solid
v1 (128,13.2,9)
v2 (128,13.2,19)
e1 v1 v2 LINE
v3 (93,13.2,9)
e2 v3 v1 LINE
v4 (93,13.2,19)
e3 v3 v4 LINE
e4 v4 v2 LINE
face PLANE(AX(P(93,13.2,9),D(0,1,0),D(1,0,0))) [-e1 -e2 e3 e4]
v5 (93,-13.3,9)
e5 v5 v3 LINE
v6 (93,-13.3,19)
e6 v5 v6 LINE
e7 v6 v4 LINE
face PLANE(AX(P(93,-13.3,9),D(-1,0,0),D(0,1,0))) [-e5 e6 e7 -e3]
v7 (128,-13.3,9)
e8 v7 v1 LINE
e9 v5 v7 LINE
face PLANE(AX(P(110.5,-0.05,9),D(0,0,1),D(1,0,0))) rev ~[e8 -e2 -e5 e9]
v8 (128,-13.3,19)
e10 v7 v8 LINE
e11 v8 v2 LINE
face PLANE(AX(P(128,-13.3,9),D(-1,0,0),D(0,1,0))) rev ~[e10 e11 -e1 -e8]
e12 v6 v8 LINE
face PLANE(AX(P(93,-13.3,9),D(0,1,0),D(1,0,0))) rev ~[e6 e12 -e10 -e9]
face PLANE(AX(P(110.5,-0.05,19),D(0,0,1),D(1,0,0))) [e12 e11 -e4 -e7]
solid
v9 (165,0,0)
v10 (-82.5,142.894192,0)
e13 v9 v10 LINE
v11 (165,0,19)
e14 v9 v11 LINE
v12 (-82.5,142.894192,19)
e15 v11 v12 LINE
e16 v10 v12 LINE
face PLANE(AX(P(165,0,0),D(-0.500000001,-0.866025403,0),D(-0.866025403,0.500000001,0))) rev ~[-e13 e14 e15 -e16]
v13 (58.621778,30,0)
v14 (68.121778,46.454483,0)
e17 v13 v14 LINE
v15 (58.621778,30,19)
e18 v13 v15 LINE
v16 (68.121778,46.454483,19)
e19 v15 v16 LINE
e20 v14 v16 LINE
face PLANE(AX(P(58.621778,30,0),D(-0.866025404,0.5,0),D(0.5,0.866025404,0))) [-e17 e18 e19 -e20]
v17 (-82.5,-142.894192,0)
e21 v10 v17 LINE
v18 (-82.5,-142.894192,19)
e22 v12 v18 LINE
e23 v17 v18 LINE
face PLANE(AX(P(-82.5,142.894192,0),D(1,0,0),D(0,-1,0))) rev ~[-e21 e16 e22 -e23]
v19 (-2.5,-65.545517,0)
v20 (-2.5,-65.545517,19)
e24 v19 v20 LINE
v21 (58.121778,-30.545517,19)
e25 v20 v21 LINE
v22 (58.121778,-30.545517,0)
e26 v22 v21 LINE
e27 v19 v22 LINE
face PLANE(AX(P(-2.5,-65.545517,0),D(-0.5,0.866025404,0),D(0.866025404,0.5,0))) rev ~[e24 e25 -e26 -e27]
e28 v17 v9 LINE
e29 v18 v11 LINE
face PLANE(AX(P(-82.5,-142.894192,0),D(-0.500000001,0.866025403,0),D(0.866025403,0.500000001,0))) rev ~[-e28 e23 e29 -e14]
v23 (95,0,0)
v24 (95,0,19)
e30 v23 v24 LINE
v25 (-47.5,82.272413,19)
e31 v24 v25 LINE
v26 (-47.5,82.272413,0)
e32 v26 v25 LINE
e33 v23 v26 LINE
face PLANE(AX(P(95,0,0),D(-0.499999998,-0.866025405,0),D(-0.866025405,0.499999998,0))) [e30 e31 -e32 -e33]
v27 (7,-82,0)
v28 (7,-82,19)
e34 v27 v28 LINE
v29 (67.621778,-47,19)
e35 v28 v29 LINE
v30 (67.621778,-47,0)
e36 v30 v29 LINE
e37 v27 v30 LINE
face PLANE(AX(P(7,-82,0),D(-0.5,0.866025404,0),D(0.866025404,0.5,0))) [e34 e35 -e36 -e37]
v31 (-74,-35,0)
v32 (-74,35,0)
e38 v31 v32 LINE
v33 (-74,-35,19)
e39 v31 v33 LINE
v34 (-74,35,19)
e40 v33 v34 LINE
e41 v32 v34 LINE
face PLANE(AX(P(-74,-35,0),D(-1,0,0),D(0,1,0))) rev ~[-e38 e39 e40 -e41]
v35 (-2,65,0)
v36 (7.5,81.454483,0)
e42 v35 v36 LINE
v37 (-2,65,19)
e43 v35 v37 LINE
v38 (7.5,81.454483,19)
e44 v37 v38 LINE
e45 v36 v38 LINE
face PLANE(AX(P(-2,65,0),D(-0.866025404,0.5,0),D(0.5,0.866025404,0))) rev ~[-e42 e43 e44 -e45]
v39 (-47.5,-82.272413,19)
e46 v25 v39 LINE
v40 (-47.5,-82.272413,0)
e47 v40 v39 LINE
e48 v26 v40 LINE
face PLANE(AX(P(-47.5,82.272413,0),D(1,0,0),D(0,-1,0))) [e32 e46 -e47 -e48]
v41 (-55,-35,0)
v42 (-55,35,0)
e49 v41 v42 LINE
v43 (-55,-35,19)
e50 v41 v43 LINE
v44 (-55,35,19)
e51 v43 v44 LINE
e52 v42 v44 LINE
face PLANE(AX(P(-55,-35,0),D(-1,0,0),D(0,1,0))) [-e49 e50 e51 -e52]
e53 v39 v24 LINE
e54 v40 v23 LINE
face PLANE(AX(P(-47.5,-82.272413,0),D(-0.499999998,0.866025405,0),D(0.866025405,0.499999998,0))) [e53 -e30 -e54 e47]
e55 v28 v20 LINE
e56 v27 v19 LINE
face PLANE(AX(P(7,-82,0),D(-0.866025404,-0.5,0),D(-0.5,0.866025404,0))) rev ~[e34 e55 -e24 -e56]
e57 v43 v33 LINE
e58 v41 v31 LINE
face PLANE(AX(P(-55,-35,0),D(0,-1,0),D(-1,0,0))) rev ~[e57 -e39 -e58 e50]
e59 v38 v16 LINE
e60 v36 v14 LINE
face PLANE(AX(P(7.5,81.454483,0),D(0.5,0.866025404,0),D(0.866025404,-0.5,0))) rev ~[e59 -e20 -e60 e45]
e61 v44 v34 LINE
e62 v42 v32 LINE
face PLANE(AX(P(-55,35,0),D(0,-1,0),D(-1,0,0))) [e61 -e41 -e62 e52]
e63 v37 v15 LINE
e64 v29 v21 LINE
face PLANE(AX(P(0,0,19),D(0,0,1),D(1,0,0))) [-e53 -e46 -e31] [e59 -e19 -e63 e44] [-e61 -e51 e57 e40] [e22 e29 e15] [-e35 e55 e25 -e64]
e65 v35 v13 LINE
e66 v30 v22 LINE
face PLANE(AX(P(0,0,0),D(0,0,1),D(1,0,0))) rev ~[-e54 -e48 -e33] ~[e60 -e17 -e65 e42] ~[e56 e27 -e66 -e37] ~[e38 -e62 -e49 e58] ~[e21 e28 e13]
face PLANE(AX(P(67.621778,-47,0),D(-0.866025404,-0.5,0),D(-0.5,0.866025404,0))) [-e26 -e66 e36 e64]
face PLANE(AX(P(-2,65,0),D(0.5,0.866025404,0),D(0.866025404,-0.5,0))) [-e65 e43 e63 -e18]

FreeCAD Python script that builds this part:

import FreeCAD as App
import Part
import Sketcher
Q = App.Units.Quantity

doc = App.newDocument("Part")
body = doc.addObject("PartDesign::Body", "Body")

sketch1 = body.newObject("Sketcher::SketchObject", "Sketch")
sketch1.AttachmentSupport = (doc.getObject("XY_Plane"), [""])
sketch1.MapMode = "FlatFace"
sketch1.addGeometry(Part.LineSegment(App.Vector(0, 19, 0), App.Vector(0, 0, 0)), False)
sketch1.addGeometry(Part.LineSegment(App.Vector(0, 0, 0), App.Vector(70, 0, 0)), False)
sketch1.addGeometry(Part.LineSegment(App.Vector(70, 0, 0), App.Vector(70, 19, 0)), False)
sketch1.addGeometry(Part.LineSegment(App.Vector(70, 19, 0), App.Vector(0, 19, 0)), False)
sketch1.addConstraint(Sketcher.Constraint("Coincident", 0, 2, 1, 1))
sketch1.addConstraint(Sketcher.Constraint("Coincident", 1, 2, 2, 1))
sketch1.addConstraint(Sketcher.Constraint("Coincident", 2, 2, 3, 1))
sketch1.addConstraint(Sketcher.Constraint("Coincident", 3, 2, 0, 1))
sketch1.addConstraint(Sketcher.Constraint("Vertical", 0))
sketch1.addConstraint(Sketcher.Constraint("Horizontal", 1))
sketch1.addConstraint(Sketcher.Constraint("Vertical", 2))
sketch1.addConstraint(Sketcher.Constraint("Horizontal", 3))
sketch1.addConstraint(Sketcher.Constraint("Coincident", 0, 2, -1, 1))
sketch1.addConstraint(Sketcher.Constraint("DistanceX", 1, 1, 1, 2, Q("70 mm")))
sketch1.addConstraint(Sketcher.Constraint("DistanceY", 0, 2, 0, 1, Q("19 mm")))
pad1 = body.newObject("PartDesign::Pad", "Pad")
pad1.Profile = sketch1
pad1.Length = 19
body2 = doc.addObject("PartDesign::Body", "Body001")
doc.recompute()

body.Placement = App.Placement(App.Vector(7, -82, 0), App.Rotation(App.Vector(0, 0, 1), 30))
boolean = body2.newObject("PartDesign::Boolean", "Boolean")
boolean.Type = "Fuse"
boolean.addObjects([body])
body3 = doc.addObject("PartDesign::Body", "Body002")

sketch2 = body3.newObject("Sketcher::SketchObject", "Sketch001")
sketch2.AttachmentSupport = (doc.getObject("XY_Plane002"), [""])
sketch2.MapMode = "FlatFace"
sketch2.addGeometry(Part.LineSegment(App.Vector(0, 19, 0), App.Vector(0, 0, 0)), False)
sketch2.addGeometry(Part.LineSegment(App.Vector(0, 0, 0), App.Vector(70, 0, 0)), False)
sketch2.addGeometry(Part.LineSegment(App.Vector(70, 0, 0), App.Vector(70, 19, 0)), False)
sketch2.addGeometry(Part.LineSegment(App.Vector(70, 19, 0), App.Vector(0, 19, 0)), False)
sketch2.addConstraint(Sketcher.Constraint("Coincident", 0, 2, 1, 1))
sketch2.addConstraint(Sketcher.Constraint("Coincident", 1, 2, 2, 1))
sketch2.addConstraint(Sketcher.Constraint("Coincident", 2, 2, 3, 1))
sketch2.addConstraint(Sketcher.Constraint("Coincident", 3, 2, 0, 1))
sketch2.addConstraint(Sketcher.Constraint("Vertical", 0))
sketch2.addConstraint(Sketcher.Constraint("Horizontal", 1))
sketch2.addConstraint(Sketcher.Constraint("Vertical", 2))
sketch2.addConstraint(Sketcher.Constraint("Horizontal", 3))
sketch2.addConstraint(Sketcher.Constraint("Coincident", 0, 2, -1, 1))
sketch2.addConstraint(Sketcher.Constraint("DistanceX", 1, 1, 1, 2, Q("70 mm")))
sketch2.addConstraint(Sketcher.Constraint("DistanceY", 0, 2, 0, 1, Q("19 mm")))
pad2 = body3.newObject("PartDesign::Pad", "Pad001")
pad2.Profile = sketch2
pad2.Length = 19
body4 = doc.addObject("PartDesign::Body", "Body003")
doc.recompute()

body3.Placement = App.Placement(App.Vector(-55, -35, 0), App.Rotation(App.Vector(0, 0, 1), 90))
boolean2 = body4.newObject("PartDesign::Boolean", "Boolean001")
boolean2.Type = "Fuse"
boolean2.addObjects([body3])
body5 = doc.addObject("PartDesign::Body", "Body004")

sketch3 = body5.newObject("Sketcher::SketchObject", "Sketch002")
sketch3.AttachmentSupport = (doc.getObject("XY_Plane004"), [""])
sketch3.MapMode = "FlatFace"
sketch3.addGeometry(Part.LineSegment(App.Vector(0, 19, 0), App.Vector(0, 0, 0)), False)
sketch3.addGeometry(Part.LineSegment(App.Vector(0, 0, 0), App.Vector(70, 0, 0)), False)
sketch3.addGeometry(Part.LineSegment(App.Vector(70, 0, 0), App.Vector(70, 19, 0)), False)
sketch3.addGeometry(Part.LineSegment(App.Vector(70, 19, 0), App.Vector(0, 19, 0)), False)
sketch3.addConstraint(Sketcher.Constraint("Coincident", 0, 2, 1, 1))
sketch3.addConstraint(Sketcher.Constraint("Coincident", 1, 2, 2, 1))
sketch3.addConstraint(Sketcher.Constraint("Coincident", 2, 2, 3, 1))
sketch3.addConstraint(Sketcher.Constraint("Coincident", 3, 2, 0, 1))
sketch3.addConstraint(Sketcher.Constraint("Vertical", 0))
sketch3.addConstraint(Sketcher.Constraint("Horizontal", 1))
sketch3.addConstraint(Sketcher.Constraint("Vertical", 2))
sketch3.addConstraint(Sketcher.Constraint("Horizontal", 3))
sketch3.addConstraint(Sketcher.Constraint("Coincident", 0, 2, -1, 1))
sketch3.addConstraint(Sketcher.Constraint("DistanceX", 1, 1, 1, 2, Q("70 mm")))
sketch3.addConstraint(Sketcher.Constraint("DistanceY", 0, 2, 0, 1, Q("19 mm")))
pad3 = body5.newObject("PartDesign::Pad", "Pad002")
pad3.Profile = sketch3
pad3.Length = 19
body6 = doc.addObject("PartDesign::Body", "Body005")
doc.recompute()

body5.Placement = App.Placement(App.Vector(-2, 65, 0), App.Rotation(App.Vector(0, 0, -1), 30))
boolean3 = body6.newObject("PartDesign::Boolean", "Boolean002")
boolean3.Type = "Fuse"
boolean3.addObjects([body5])
body7 = doc.addObject("PartDesign::Body", "Body006")

sketch4 = body7.newObject("Sketcher::SketchObject", "Sketch003")
sketch4.AttachmentSupport = (doc.getObject("XY_Plane006"), [""])
sketch4.MapMode = "FlatFace"
sketch4.addGeometry(Part.LineSegment(App.Vector(95, 0, 0), App.Vector(-47.5, 82.272413, 0)), False)
sketch4.addGeometry(Part.LineSegment(App.Vector(-47.5, 82.272413, 0), App.Vector(-47.5, -82.272413, 0)), False)
sketch4.addGeometry(Part.LineSegment(App.Vector(-47.5, -82.272413, 0), App.Vector(95, 0, 0)), False)
sketch4.addConstraint(Sketcher.Constraint("Coincident", 0, 2, 1, 1))
sketch4.addConstraint(Sketcher.Constraint("Coincident", 1, 2, 2, 1))
sketch4.addConstraint(Sketcher.Constraint("Coincident", 2, 2, 0, 1))
sketch4.addConstraint(Sketcher.Constraint("Vertical", 1))
sketch4.addConstraint(Sketcher.Constraint("PointOnObject", 2, 2, -1))
sketch4.addConstraint(Sketcher.Constraint("Equal", 0, 2))
sketch4.addConstraint(Sketcher.Constraint("Angle", 0, Q("150 deg")))
sketch4.addConstraint(Sketcher.Constraint("DistanceX", -1, 1, 2, 2, Q("95 mm")))
sketch4.addConstraint(Sketcher.Constraint("DistanceX", 0, 2, -1, 1, Q("47.5 mm")))
pad4 = body7.newObject("PartDesign::Pad", "Pad003")
pad4.Profile = sketch4
pad4.Length = 19
body8 = doc.addObject("PartDesign::Body", "Body007")

sketch5 = body8.newObject("Sketcher::SketchObject", "Sketch004")
sketch5.AttachmentSupport = (doc.getObject("XY_Plane007"), [""])
sketch5.MapMode = "FlatFace"
sketch5.addGeometry(Part.LineSegment(App.Vector(165, 0, 0), App.Vector(-82.5, 142.894192, 0)), False)
sketch5.addGeometry(Part.LineSegment(App.Vector(-82.5, 142.894192, 0), App.Vector(-82.5, -142.894192, 0)), False)
sketch5.addGeometry(Part.LineSegment(App.Vector(-82.5, -142.894192, 0), App.Vector(165, 0, 0)), False)
sketch5.addConstraint(Sketcher.Constraint("Coincident", 0, 2, 1, 1))
sketch5.addConstraint(Sketcher.Constraint("Coincident", 1, 2, 2, 1))
sketch5.addConstraint(Sketcher.Constraint("Coincident", 2, 2, 0, 1))
sketch5.addConstraint(Sketcher.Constraint("Vertical", 1))
sketch5.addConstraint(Sketcher.Constraint("PointOnObject", 2, 2, -1))
sketch5.addConstraint(Sketcher.Constraint("Equal", 0, 2))
sketch5.addConstraint(Sketcher.Constraint("Angle", 0, Q("150 deg")))
sketch5.addConstraint(Sketcher.Constraint("DistanceX", -1, 1, 2, 2, Q("165 mm")))
sketch5.addConstraint(Sketcher.Constraint("DistanceX", 0, 2, -1, 1, Q("82.5 mm")))
pad5 = body8.newObject("PartDesign::Pad", "Pad004")
pad5.Profile = sketch5
pad5.Length = 19
doc.recompute()

boolean4 = body8.newObject("PartDesign::Boolean", "Boolean003")
boolean4.Type = "Cut"
boolean4.addObjects([body7])
doc.recompute()

boolean5 = body8.newObject("PartDesign::Boolean", "Boolean004")
boolean5.Type = "Cut"
boolean5.addObjects([body6])
doc.recompute()

boolean6 = body8.newObject("PartDesign::Boolean", "Boolean005")
boolean6.Type = "Cut"
boolean6.addObjects([body4])
doc.recompute()

boolean7 = body8.newObject("PartDesign::Boolean", "Boolean006")
boolean7.Type = "Cut"
boolean7.addObjects([body2])
body9 = doc.addObject("PartDesign::Body", "Body008")

sketch6 = body9.newObject("Sketcher::SketchObject", "Sketch005")
sketch6.AttachmentSupport = (doc.getObject("XY_Plane008"), [""])
sketch6.MapMode = "FlatFace"
sketch6.AttachmentOffset = App.Placement(App.Vector(0, 0, 9), App.Rotation())
sketch6.addGeometry(Part.LineSegment(App.Vector(93, 13.2, 0), App.Vector(93, -13.3, 0)), False)
sketch6.addGeometry(Part.LineSegment(App.Vector(93, -13.3, 0), App.Vector(128, -13.3, 0)), False)
sketch6.addGeometry(Part.LineSegment(App.Vector(128, -13.3, 0), App.Vector(128, 13.2, 0)), False)
sketch6.addGeometry(Part.LineSegment(App.Vector(128, 13.2, 0), App.Vector(93, 13.2, 0)), False)
sketch6.addConstraint(Sketcher.Constraint("Coincident", 0, 2, 1, 1))
sketch6.addConstraint(Sketcher.Constraint("Coincident", 1, 2, 2, 1))
sketch6.addConstraint(Sketcher.Constraint("Coincident", 2, 2, 3, 1))
sketch6.addConstraint(Sketcher.Constraint("Coincident", 3, 2, 0, 1))
sketch6.addConstraint(Sketcher.Constraint("Vertical", 0))
sketch6.addConstraint(Sketcher.Constraint("Horizontal", 1))
sketch6.addConstraint(Sketcher.Constraint("Vertical", 2))
sketch6.addConstraint(Sketcher.Constraint("Horizontal", 3))
sketch6.addConstraint(Sketcher.Constraint("DistanceX", 1, 1, 1, 2, Q("35 mm")))
sketch6.addConstraint(Sketcher.Constraint("DistanceY", 0, 2, 0, 1, Q("26.5 mm")))
sketch6.addConstraint(Sketcher.Constraint("DistanceX", -1, 1, 0, 2, Q("93 mm")))
sketch6.addConstraint(Sketcher.Constraint("DistanceY", 0, 2, -1, 1, Q("13.3 mm")))
pad6 = body9.newObject("PartDesign::Pad", "Pad005")
pad6.Profile = sketch6
pad6.Length = 10

doc.recompute()
